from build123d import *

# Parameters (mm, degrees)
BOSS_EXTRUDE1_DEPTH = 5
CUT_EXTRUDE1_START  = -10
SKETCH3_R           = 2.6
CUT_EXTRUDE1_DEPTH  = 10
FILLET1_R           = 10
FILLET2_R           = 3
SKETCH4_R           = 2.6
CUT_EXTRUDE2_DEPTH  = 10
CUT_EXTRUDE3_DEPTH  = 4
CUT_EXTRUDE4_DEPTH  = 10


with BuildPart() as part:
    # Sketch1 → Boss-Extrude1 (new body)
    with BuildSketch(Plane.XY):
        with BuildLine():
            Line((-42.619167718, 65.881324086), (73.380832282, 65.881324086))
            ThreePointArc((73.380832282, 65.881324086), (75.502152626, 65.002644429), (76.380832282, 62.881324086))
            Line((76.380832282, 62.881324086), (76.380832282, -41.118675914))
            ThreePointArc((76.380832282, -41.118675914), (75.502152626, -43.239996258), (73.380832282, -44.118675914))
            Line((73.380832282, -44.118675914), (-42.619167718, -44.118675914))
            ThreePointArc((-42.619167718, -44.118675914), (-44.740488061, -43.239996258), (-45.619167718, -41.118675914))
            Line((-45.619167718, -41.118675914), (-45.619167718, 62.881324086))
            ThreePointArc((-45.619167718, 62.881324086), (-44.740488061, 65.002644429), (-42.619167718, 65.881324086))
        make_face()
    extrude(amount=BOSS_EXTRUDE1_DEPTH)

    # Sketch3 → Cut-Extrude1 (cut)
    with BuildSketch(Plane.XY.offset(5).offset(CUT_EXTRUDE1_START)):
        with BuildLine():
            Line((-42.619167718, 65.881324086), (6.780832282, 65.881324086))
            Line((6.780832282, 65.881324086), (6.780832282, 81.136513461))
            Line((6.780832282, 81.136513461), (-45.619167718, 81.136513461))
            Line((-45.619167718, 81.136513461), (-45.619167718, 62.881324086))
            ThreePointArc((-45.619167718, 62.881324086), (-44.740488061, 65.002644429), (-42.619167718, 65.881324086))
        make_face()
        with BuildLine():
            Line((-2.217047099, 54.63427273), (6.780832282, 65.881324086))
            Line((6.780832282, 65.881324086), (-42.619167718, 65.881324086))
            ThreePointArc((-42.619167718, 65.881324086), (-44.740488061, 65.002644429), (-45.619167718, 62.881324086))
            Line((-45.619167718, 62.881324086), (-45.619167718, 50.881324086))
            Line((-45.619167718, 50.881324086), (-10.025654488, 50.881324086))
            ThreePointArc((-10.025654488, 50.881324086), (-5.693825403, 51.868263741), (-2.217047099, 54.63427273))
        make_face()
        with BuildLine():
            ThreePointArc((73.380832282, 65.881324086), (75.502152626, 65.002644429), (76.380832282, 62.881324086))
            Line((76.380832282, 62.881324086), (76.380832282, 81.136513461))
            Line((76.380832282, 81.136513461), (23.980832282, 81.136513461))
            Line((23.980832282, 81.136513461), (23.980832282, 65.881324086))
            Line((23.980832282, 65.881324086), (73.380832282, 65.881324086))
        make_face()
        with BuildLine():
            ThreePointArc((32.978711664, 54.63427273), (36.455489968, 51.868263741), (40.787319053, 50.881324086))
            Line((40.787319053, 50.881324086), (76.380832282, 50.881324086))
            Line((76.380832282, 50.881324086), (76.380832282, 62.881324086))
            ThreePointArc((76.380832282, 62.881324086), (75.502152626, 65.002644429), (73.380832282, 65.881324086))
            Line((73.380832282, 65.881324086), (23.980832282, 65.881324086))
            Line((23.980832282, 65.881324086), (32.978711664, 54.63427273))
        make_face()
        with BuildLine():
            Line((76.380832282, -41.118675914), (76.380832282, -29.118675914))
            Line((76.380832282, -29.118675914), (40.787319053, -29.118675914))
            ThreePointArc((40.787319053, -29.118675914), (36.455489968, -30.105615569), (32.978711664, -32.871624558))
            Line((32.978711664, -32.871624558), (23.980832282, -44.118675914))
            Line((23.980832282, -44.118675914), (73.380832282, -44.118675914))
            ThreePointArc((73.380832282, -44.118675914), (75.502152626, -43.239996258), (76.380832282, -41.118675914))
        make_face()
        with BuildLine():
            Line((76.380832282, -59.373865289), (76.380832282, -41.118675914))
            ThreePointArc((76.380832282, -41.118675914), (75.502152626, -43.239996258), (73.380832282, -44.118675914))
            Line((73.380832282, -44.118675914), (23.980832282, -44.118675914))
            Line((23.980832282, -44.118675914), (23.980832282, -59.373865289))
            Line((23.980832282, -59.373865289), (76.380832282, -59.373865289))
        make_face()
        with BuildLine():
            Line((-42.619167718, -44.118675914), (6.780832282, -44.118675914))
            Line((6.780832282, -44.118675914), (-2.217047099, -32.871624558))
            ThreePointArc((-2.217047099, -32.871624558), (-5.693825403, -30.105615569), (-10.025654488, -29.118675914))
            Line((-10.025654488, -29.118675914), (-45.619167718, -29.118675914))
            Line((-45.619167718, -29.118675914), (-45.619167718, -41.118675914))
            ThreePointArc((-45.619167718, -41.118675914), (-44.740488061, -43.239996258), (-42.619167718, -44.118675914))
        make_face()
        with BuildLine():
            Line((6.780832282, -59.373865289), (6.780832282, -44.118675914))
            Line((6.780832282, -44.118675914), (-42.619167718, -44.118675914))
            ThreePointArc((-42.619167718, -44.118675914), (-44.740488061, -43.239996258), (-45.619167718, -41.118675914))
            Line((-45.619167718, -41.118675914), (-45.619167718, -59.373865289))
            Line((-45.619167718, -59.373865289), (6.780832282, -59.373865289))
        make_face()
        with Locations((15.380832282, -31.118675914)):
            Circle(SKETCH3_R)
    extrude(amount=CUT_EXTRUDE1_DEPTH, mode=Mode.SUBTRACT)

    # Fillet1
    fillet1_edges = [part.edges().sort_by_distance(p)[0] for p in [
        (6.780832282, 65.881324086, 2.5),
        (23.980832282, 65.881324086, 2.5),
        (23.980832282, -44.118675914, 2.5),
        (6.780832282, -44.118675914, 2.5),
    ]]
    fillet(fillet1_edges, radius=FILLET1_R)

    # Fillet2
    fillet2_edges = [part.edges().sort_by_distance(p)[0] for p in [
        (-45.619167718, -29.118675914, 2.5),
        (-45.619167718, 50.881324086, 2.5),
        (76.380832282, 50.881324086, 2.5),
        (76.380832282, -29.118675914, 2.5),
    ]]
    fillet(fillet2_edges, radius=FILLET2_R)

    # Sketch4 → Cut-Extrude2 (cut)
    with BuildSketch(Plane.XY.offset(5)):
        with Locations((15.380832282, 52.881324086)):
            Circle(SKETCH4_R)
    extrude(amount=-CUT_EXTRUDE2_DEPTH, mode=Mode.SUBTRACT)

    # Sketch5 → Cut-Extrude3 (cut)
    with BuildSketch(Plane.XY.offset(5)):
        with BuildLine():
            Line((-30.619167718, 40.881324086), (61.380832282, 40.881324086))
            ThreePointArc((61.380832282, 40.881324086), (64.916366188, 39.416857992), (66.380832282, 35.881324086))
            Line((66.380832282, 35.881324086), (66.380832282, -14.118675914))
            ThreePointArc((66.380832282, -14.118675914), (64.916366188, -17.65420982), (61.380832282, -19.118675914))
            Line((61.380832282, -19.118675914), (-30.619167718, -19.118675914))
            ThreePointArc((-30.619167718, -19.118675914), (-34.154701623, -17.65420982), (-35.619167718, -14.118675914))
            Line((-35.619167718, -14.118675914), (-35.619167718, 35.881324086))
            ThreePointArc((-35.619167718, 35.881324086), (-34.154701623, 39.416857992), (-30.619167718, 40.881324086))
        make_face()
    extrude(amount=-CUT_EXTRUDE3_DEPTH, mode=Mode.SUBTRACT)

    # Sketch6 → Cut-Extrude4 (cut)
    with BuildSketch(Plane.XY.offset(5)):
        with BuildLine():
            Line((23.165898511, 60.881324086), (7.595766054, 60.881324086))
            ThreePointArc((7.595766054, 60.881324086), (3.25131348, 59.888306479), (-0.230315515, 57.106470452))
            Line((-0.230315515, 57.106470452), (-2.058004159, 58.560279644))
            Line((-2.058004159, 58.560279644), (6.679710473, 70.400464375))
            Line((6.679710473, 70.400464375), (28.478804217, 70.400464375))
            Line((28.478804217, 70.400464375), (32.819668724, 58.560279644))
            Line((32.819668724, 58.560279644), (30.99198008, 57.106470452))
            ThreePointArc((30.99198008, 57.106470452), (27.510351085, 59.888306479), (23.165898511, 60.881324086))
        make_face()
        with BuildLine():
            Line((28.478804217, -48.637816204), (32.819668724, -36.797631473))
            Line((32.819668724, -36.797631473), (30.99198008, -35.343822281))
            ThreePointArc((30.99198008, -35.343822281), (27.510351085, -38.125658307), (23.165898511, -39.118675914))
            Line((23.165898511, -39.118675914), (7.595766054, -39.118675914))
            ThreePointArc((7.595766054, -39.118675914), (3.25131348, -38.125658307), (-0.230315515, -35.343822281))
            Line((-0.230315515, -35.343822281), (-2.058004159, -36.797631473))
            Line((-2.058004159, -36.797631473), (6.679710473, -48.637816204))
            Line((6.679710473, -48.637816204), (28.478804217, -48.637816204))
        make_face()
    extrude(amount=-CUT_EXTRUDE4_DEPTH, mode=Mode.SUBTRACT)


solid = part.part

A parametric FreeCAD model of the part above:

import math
import FreeCAD as App
import Part
import Sketcher
from FreeCAD import Vector
Q = App.Units.Quantity


def edges_at(feature, points):
    """Names of the edges that pass closest to the given points."""
    edges = feature.Shape.Edges
    near = lambda p: min(range(len(edges)), key=lambda i: edges[i].distToShape(Part.Vertex(*p))[0])
    return sorted({f"Edge{near(p) + 1}" for p in points})

doc = App.newDocument("Part")
body = doc.addObject("PartDesign::Body", "Body")

# Sketch on XY plane
sketch1 = doc.addObject("Sketcher::SketchObject", "Sketch")
body.addObject(sketch1)
sketch1.AttachmentSupport = (doc.XY_Plane, [""])
sketch1.MapMode = "FlatFace"
sketch1.addGeometry(Part.LineSegment(Vector(73.4, 65.9, 0), Vector(-42.6, 65.9, 0)), False)
sketch1.addGeometry(Part.ArcOfCircle(Part.Circle(Vector(-42.6, 62.9, 0), Vector(0, 0, 1), 3), math.radians(90), math.radians(180)), False)
sketch1.addGeometry(Part.LineSegment(Vector(-45.6, 62.9, 0), Vector(-45.6, -41.1, 0)), False)
sketch1.addGeometry(Part.ArcOfCircle(Part.Circle(Vector(-42.6, -41.1, 0), Vector(0, 0, 1), 3), math.radians(180), math.radians(270)), False)
sketch1.addGeometry(Part.LineSegment(Vector(-42.6, -44.1, 0), Vector(73.4, -44.1, 0)), False)
sketch1.addGeometry(Part.ArcOfCircle(Part.Circle(Vector(73.4, -41.1, 0), Vector(0, 0, 1), 3), math.radians(-90), math.radians(0)), False)
sketch1.addGeometry(Part.LineSegment(Vector(76.4, -41.1, 0), Vector(76.4, 62.9, 0)), False)
sketch1.addGeometry(Part.ArcOfCircle(Part.Circle(Vector(73.4, 62.9, 0), Vector(0, 0, 1), 3), math.radians(0), math.radians(90)), False)
sketch1.addConstraint(Sketcher.Constraint("Tangent", 0, 2, 1, 1))
sketch1.addConstraint(Sketcher.Constraint("Tangent", 1, 2, 2, 1))
sketch1.addConstraint(Sketcher.Constraint("Tangent", 2, 2, 3, 1))
sketch1.addConstraint(Sketcher.Constraint("Tangent", 3, 2, 4, 1))
sketch1.addConstraint(Sketcher.Constraint("Tangent", 4, 2, 5, 1))
sketch1.addConstraint(Sketcher.Constraint("Tangent", 5, 2, 6, 1))
sketch1.addConstraint(Sketcher.Constraint("Tangent", 6, 2, 7, 1))
sketch1.addConstraint(Sketcher.Constraint("Tangent", 7, 2, 0, 1))
sketch1.addConstraint(Sketcher.Constraint("Horizontal", 0))
sketch1.addConstraint(Sketcher.Constraint("Vertical", 2))
sketch1.addConstraint(Sketcher.Constraint("Horizontal", 4))
sketch1.addConstraint(Sketcher.Constraint("Vertical", 6))
sketch1.addConstraint(Sketcher.Constraint("Equal", 1, 3))
sketch1.addConstraint(Sketcher.Constraint("Equal", 3, 5))
sketch1.addConstraint(Sketcher.Constraint("Equal", 5, 7))
sketch1.addConstraint(Sketcher.Constraint("Radius", 1, 3.0))
sketch1.addConstraint(Sketcher.Constraint("DistanceX", 0, 2, 0, 1, 116.0))
sketch1.addConstraint(Sketcher.Constraint("DistanceY", 2, 2, 2, 1, 104.0))
sketch1.addConstraint(Sketcher.Constraint("DistanceX", 1, 3, -1, 1, 42.619168))
sketch1.addConstraint(Sketcher.Constraint("DistanceY", -1, 1, 1, 3, 62.881324))
pad1 = doc.addObject("PartDesign::Pad", "Pad")
body.addObject(pad1)
pad1.Profile = sketch1
pad1.Length = 5

# Sketch on XY plane
sketch2 = doc.addObject("Sketcher::SketchObject", "Sketch001")
body.addObject(sketch2)
sketch2.AttachmentSupport = (doc.XY_Plane, [""])
sketch2.MapMode = "FlatFace"
sketch2.AttachmentOffset = App.Placement(Vector(0, 0, -5), App.Rotation())
sketch2.addGeometry(Part.LineSegment(Vector(6.8, 65.9, 0), Vector(6.8, 81.1, 0)), False)
sketch2.addGeometry(Part.LineSegment(Vector(6.8, 81.1, 0), Vector(-45.6, 81.1, 0)), False)
sketch2.addGeometry(Part.LineSegment(Vector(-45.6, 81.1, 0), Vector(-45.6, 50.9, 0)), False)
sketch2.addGeometry(Part.LineSegment(Vector(-45.6, 50.9, 0), Vector(-10, 50.9, 0)), False)
sketch2.addGeometry(Part.ArcOfCircle(Part.Circle(Vector(-10, 60.9, 0), Vector(0, 0, 1), 10), math.radians(-90), math.radians(-39)), False)
sketch2.addGeometry(Part.LineSegment(Vector(-2.2, 54.6, 0), Vector(6.8, 65.9, 0)), False)
sketch2.addGeometry(Part.LineSegment(Vector(76.4, 81.1, 0), Vector(24, 81.1, 0)), False)
sketch2.addGeometry(Part.LineSegment(Vector(24, 81.1, 0), Vector(24, 65.9, 0)), False)
sketch2.addGeometry(Part.LineSegment(Vector(24, 65.9, 0), Vector(33, 54.6, 0)), False)
sketch2.addGeometry(Part.ArcOfCircle(Part.Circle(Vector(40.8, 60.9, 0), Vector(0, 0, 1), 10), math.radians(-141), math.radians(-90)), False)
sketch2.addGeometry(Part.LineSegment(Vector(40.8, 50.9, 0), Vector(76.4, 50.9, 0)), False)
sketch2.addGeometry(Part.LineSegment(Vector(76.4, 50.9, 0), Vector(76.4, 81.1, 0)), False)
sketch2.addGeometry(Part.LineSegment(Vector(76.4, -29.1, 0), Vector(40.8, -29.1, 0)), False)
sketch2.addGeometry(Part.ArcOfCircle(Part.Circle(Vector(40.8, -39.1, 0), Vector(0, 0, 1), 10), math.radians(90), math.radians(141)), False)
sketch2.addGeometry(Part.LineSegment(Vector(33, -32.9, 0), Vector(24, -44.1, 0)), False)
sketch2.addGeometry(Part.LineSegment(Vector(24, -44.1, 0), Vector(24, -59.4, 0)), False)
sketch2.addGeometry(Part.LineSegment(Vector(24, -59.4, 0), Vector(76.4, -59.4, 0)), False)
sketch2.addGeometry(Part.LineSegment(Vector(76.4, -59.4, 0), Vector(76.4, -29.1, 0)), False)
sketch2.addGeometry(Part.LineSegment(Vector(6.8, -44.1, 0), Vector(-2.2, -32.9, 0)), False)
sketch2.addGeometry(Part.ArcOfCircle(Part.Circle(Vector(-10, -39.1, 0), Vector(0, 0, 1), 10), math.radians(39), math.radians(90)), False)
sketch2.addGeometry(Part.LineSegment(Vector(-10, -29.1, 0), Vector(-45.6, -29.1, 0)), False)
sketch2.addGeometry(Part.LineSegment(Vector(-45.6, -29.1, 0), Vector(-45.6, -59.4, 0)), False)
sketch2.addGeometry(Part.LineSegment(Vector(-45.6, -59.4, 0), Vector(6.8, -59.4, 0)), False)
sketch2.addGeometry(Part.LineSegment(Vector(6.8, -59.4, 0), Vector(6.8, -44.1, 0)), False)
sketch2.addGeometry(Part.Circle(Vector(15.4, -31.1, 0), Vector(0, 0, 1), 2.6), False)
sketch2.addConstraint(Sketcher.Constraint("Coincident", 0, 2, 1, 1))
sketch2.addConstraint(Sketcher.Constraint("Coincident", 1, 2, 2, 1))
sketch2.addConstraint(Sketcher.Constraint("Coincident", 2, 2, 3, 1))
sketch2.addConstraint(Sketcher.Constraint("Tangent", 3, 2, 4, 1))
sketch2.addConstraint(Sketcher.Constraint("Tangent", 4, 2, 5, 1))
sketch2.addConstraint(Sketcher.Constraint("Coincident", 5, 2, 0, 1))
sketch2.addConstraint(Sketcher.Constraint("Coincident", 6, 2, 7, 1))
sketch2.addConstraint(Sketcher.Constraint("Coincident", 7, 2, 8, 1))
sketch2.addConstraint(Sketcher.Constraint("Tangent", 8, 2, 9, 1))
sketch2.addConstraint(Sketcher.Constraint("Tangent", 9, 2, 10, 1))
sketch2.addConstraint(Sketcher.Constraint("Coincident", 10, 2, 11, 1))
sketch2.addConstraint(Sketcher.Constraint("Coincident", 11, 2, 6, 1))
sketch2.addConstraint(Sketcher.Constraint("Tangent", 12, 2, 13, 1))
sketch2.addConstraint(Sketcher.Constraint("Tangent", 13, 2, 14, 1))
sketch2.addConstraint(Sketcher.Constraint("Coincident", 14, 2, 15, 1))
sketch2.addConstraint(Sketcher.Constraint("Coincident", 15, 2, 16, 1))
sketch2.addConstraint(Sketcher.Constraint("Coincident", 16, 2, 17, 1))
sketch2.addConstraint(Sketcher.Constraint("Coincident", 17, 2, 12, 1))
sketch2.addConstraint(Sketcher.Constraint("Tangent", 18, 2, 19, 1))
sketch2.addConstraint(Sketcher.Constraint("Tangent", 19, 2, 20, 1))
sketch2.addConstraint(Sketcher.Constraint("Coincident", 20, 2, 21, 1))
sketch2.addConstraint(Sketcher.Constraint("Coincident", 21, 2, 22, 1))
sketch2.addConstraint(Sketcher.Constraint("Coincident", 22, 2, 23, 1))
sketch2.addConstraint(Sketcher.Constraint("Coincident", 23, 2, 18, 1))
sketch2.addConstraint(Sketcher.Constraint("Vertical", 0))
sketch2.addConstraint(Sketcher.Constraint("Horizontal", 1))
sketch2.addConstraint(Sketcher.Constraint("Vertical", 2))
sketch2.addConstraint(Sketcher.Constraint("Horizontal", 3))
sketch2.addConstraint(Sketcher.Constraint("Horizontal", 6))
sketch2.addConstraint(Sketcher.Constraint("Vertical", 7))
sketch2.addConstraint(Sketcher.Constraint("Horizontal", 10))
sketch2.addConstraint(Sketcher.Constraint("Vertical", 11))
sketch2.addConstraint(Sketcher.Constraint("Horizontal", 12))
sketch2.addConstraint(Sketcher.Constraint("Vertical", 15))
sketch2.addConstraint(Sketcher.Constraint("Horizontal", 16))
sketch2.addConstraint(Sketcher.Constraint("Vertical", 17))
sketch2.addConstraint(Sketcher.Constraint("Horizontal", 20))
sketch2.addConstraint(Sketcher.Constraint("Vertical", 21))
sketch2.addConstraint(Sketcher.Constraint("Horizontal", 22))
sketch2.addConstraint(Sketcher.Constraint("Vertical", 23))
sketch2.addConstraint(Sketcher.Constraint("Equal", 4, 9))
sketch2.addConstraint(Sketcher.Constraint("Equal", 9, 13))
sketch2.addConstraint(Sketcher.Constraint("Equal", 13, 19))
sketch2.addConstraint(Sketcher.Constraint("Parallel", 5, 14))
sketch2.addConstraint(Sketcher.Constraint("Parallel", 8, 18))
sketch2.addConstraint(Sketcher.Constraint("Horizontal", 4, 3, 9, 3))
sketch2.addConstraint(Sketcher.Constraint("Horizontal", 13, 3, 19, 3))
sketch2.addConstraint(Sketcher.Constraint("Horizontal", 1, 2, 6, 2))
sketch2.addConstraint(Sketcher.Constraint("Horizontal", 5, 2, 7, 2))
sketch2.addConstraint(Sketcher.Constraint("Horizontal", 4, 2, 8, 2))
sketch2.addConstraint(Sketcher.Constraint("Horizontal", 16, 2, 21, 2))
sketch2.addConstraint(Sketcher.Constraint("Horizontal", 14, 2, 23, 2))
sketch2.addConstraint(Sketcher.Constraint("Vertical", 9, 3, 13, 3))
sketch2.addConstraint(Sketcher.Constraint("Vertical", 4, 3, 19, 3))
sketch2.addConstraint(Sketcher.Constraint("Vertical", 7, 2, 14, 2))
sketch2.addConstraint(Sketcher.Constraint("Vertical", 11, 2, 16, 2))
sketch2.addConstraint(Sketcher.Constraint("Vertical", 2, 2, 20, 2))
sketch2.addConstraint(Sketcher.Constraint("Equal", 1, 6))
sketch2.addConstraint(Sketcher.Constraint("Equal", 7, 15))
sketch2.addConstraint(Sketcher.Constraint("Radius", 4, 10.0))
sketch2.addConstraint(Sketcher.Constraint("Diameter", 24, 5.2))
sketch2.addConstraint(Sketcher.Constraint("DistanceX", 1, 2, 1, 1, 52.4))
sketch2.addConstraint(Sketcher.Constraint("DistanceY", 13, 3, 9, 3, 100.0))
sketch2.addConstraint(Sketcher.Constraint("DistanceY", 19, 3, 24, 3, 8.0))
sketch2.addConstraint(Sketcher.Constraint("DistanceX", 1, 2, 24, 3, 61.0))
sketch2.addConstraint(Sketcher.Constraint("DistanceY", 4, 3, 5, 2, 5.0))
sketch2.addConstraint(Sketcher.Constraint("DistanceX", 0, 2, 6, 2, 17.2))
sketch2.addConstraint(Sketcher.Constraint("DistanceY", 0, 1, 0, 2, 15.255189))
sketch2.addConstraint(Sketcher.Constraint("DistanceX", 3, 1, 3, 2, 35.593513))
sketch2.addConstraint(Sketcher.Constraint("DistanceX", -1, 1, 9, 3, 40.787319))
sketch2.addConstraint(Sketcher.Constraint("DistanceY", -1, 1, 4, 3, 60.881324))
pocket1 = doc.addObject("PartDesign::Pocket", "Pocket")
body.addObject(pocket1)
pocket1.Profile = sketch2
pocket1.Length = 10
pocket1.Reversed = True
doc.recompute()

fillet = doc.addObject("PartDesign::Fillet", "Fillet")
body.addObject(fillet)
fillet.Base = (pocket1, edges_at(pocket1, [
    (6.781, 65.881, 2.5),
    (23.981, 65.881, 2.5),
    (23.981, -44.119, 2.5),
    (6.781, -44.119, 2.5),
]))
fillet.Radius = 10
doc.recompute()

fillet2 = doc.addObject("PartDesign::Fillet", "Fillet001")
body.addObject(fillet2)
fillet2.Base = (fillet, edges_at(fillet, [
    (-45.619, -29.119, 2.5),
    (-45.619, 50.881, 2.5),
    (76.381, 50.881, 2.5),
    (76.381, -29.119, 2.5),
]))
fillet2.Radius = 3

# Sketch on XY plane
sketch3 = doc.addObject("Sketcher::SketchObject", "Sketch002")
body.addObject(sketch3)
sketch3.AttachmentSupport = (doc.XY_Plane, [""])
sketch3.MapMode = "FlatFace"
sketch3.AttachmentOffset = App.Placement(Vector(0, 0, 5), App.Rotation())
sketch3.addGeometry(Part.Circle(Vector(15.4, 52.9, 0), Vector(0, 0, 1), 2.6), False)
sketch3.addConstraint(Sketcher.Constraint("Diameter", 0, 5.2))
sketch3.addConstraint(Sketcher.Constraint("DistanceX", -1, 1, 0, 3, 15.380832))
sketch3.addConstraint(Sketcher.Constraint("DistanceY", -1, 1, 0, 3, 52.881324))
pocket2 = doc.addObject("PartDesign::Pocket", "Pocket001")
body.addObject(pocket2)
pocket2.Profile = sketch3
pocket2.Length = 10

# Sketch on XY plane
sketch4 = doc.addObject("Sketcher::SketchObject", "Sketch003")
body.addObject(sketch4)
sketch4.AttachmentSupport = (doc.XY_Plane, [""])
sketch4.MapMode = "FlatFace"
sketch4.AttachmentOffset = App.Placement(Vector(0, 0, 5), App.Rotation())
sketch4.addGeometry(Part.LineSegment(Vector(61, 41, 0), Vector(-31, 41, 0)), False)
sketch4.addGeometry(Part.ArcOfCircle(Part.Circle(Vector(-31, 36, 0), Vector(0, 0, 1), 5), math.radians(90), math.radians(180)), False)
sketch4.addGeometry(Part.LineSegment(Vector(-36, 36, 0), Vector(-36, -14, 0)), False)
sketch4.addGeometry(Part.ArcOfCircle(Part.Circle(Vector(-31, -14, 0), Vector(0, 0, 1), 5), math.radians(-180), math.radians(-90)), False)
sketch4.addGeometry(Part.LineSegment(Vector(-31, -19, 0), Vector(61, -19, 0)), False)
sketch4.addGeometry(Part.ArcOfCircle(Part.Circle(Vector(61, -14, 0), Vector(0, 0, 1), 5), math.radians(-90), math.radians(0)), False)
sketch4.addGeometry(Part.LineSegment(Vector(66, -14, 0), Vector(66, 36, 0)), False)
sketch4.addGeometry(Part.ArcOfCircle(Part.Circle(Vector(61, 36, 0), Vector(0, 0, 1), 5), math.radians(0), math.radians(90)), False)
sketch4.addConstraint(Sketcher.Constraint("Tangent", 0, 2, 1, 1))
sketch4.addConstraint(Sketcher.Constraint("Tangent", 1, 2, 2, 1))
sketch4.addConstraint(Sketcher.Constraint("Tangent", 2, 2, 3, 1))
sketch4.addConstraint(Sketcher.Constraint("Tangent", 3, 2, 4, 1))
sketch4.addConstraint(Sketcher.Constraint("Tangent", 4, 2, 5, 1))
sketch4.addConstraint(Sketcher.Constraint("Tangent", 5, 2, 6, 1))
sketch4.addConstraint(Sketcher.Constraint("Tangent", 6, 2, 7, 1))
sketch4.addConstraint(Sketcher.Constraint("Tangent", 7, 2, 0, 1))
sketch4.addConstraint(Sketcher.Constraint("Horizontal", 0))
sketch4.addConstraint(Sketcher.Constraint("Vertical", 2))
sketch4.addConstraint(Sketcher.Constraint("Horizontal", 4))
sketch4.addConstraint(Sketcher.Constraint("Vertical", 6))
sketch4.addConstraint(Sketcher.Constraint("Equal", 1, 3))
sketch4.addConstraint(Sketcher.Constraint("Equal", 3, 5))
sketch4.addConstraint(Sketcher.Constraint("Equal", 5, 7))
sketch4.addConstraint(Sketcher.Constraint("Radius", 1, 5.0))
sketch4.addConstraint(Sketcher.Constraint("DistanceX", 0, 2, 0, 1, 92.0))
sketch4.addConstraint(Sketcher.Constraint("DistanceY", 2, 2, 2, 1, 50.0))
sketch4.addConstraint(Sketcher.Constraint("DistanceX", 1, 3, -1, 1, 30.619168))
sketch4.addConstraint(Sketcher.Constraint("DistanceY", -1, 1, 1, 3, 35.881324))
pocket3 = doc.addObject("PartDesign::Pocket", "Pocket002")
body.addObject(pocket3)
pocket3.Profile = sketch4
pocket3.Length = 4

# Sketch on XY plane
sketch5 = doc.addObject("Sketcher::SketchObject", "Sketch004")
body.addObject(sketch5)
sketch5.AttachmentSupport = (doc.XY_Plane, [""])
sketch5.MapMode = "FlatFace"
sketch5.AttachmentOffset = App.Placement(Vector(0, 0, 5), App.Rotation())
sketch5.addGeometry(Part.LineSegment(Vector(7.6, 60.9, 0), Vector(23.2, 60.9, 0)), False)
sketch5.addGeometry(Part.ArcOfCircle(Part.Circle(Vector(23.2, 50.9, 0), Vector(0, 0, 1), 10), math.radians(39), math.radians(90)), False)
sketch5.addGeometry(Part.LineSegment(Vector(31, 57.1, 0), Vector(32.8, 58.6, 0)), False)
sketch5.addGeometry(Part.LineSegment(Vector(32.8, 58.6, 0), Vector(28.5, 70.4, 0)), False)
sketch5.addGeometry(Part.LineSegment(Vector(28.5, 70.4, 0), Vector(6.7, 70.4, 0)), False)
sketch5.addGeometry(Part.LineSegment(Vector(6.7, 70.4, 0), Vector(-2.1, 58.6, 0)), False)
sketch5.addGeometry(Part.LineSegment(Vector(-2.1, 58.6, 0), Vector(-0.2, 57.1, 0)), False)
sketch5.addGeometry(Part.ArcOfCircle(Part.Circle(Vector(7.6, 50.9, 0), Vector(0, 0, 1), 10), math.radians(90), math.radians(141)), False)
sketch5.addGeometry(Part.LineSegment(Vector(28.5, -48.6, 0), Vector(32.8, -36.8, 0)), False)
sketch5.addGeometry(Part.LineSegment(Vector(32.8, -36.8, 0), Vector(31, -35.3, 0)), False)
sketch5.addGeometry(Part.ArcOfCircle(Part.Circle(Vector(23.2, -29.1, 0), Vector(0, 0, 1), 10), math.radians(-90), math.radians(-39)), False)
sketch5.addGeometry(Part.LineSegment(Vector(23.2, -39.1, 0), Vector(7.6, -39.1, 0)), False)
sketch5.addGeometry(Part.ArcOfCircle(Part.Circle(Vector(7.6, -29.1, 0), Vector(0, 0, 1), 10), math.radians(-141), math.radians(-90)), False)
sketch5.addGeometry(Part.LineSegment(Vector(-0.2, -35.3, 0), Vector(-2.1, -36.8, 0)), False)
sketch5.addGeometry(Part.LineSegment(Vector(-2.1, -36.8, 0), Vector(6.7, -48.6, 0)), False)
sketch5.addGeometry(Part.LineSegment(Vector(6.7, -48.6, 0), Vector(28.5, -48.6, 0)), False)
sketch5.addConstraint(Sketcher.Constraint("Tangent", 0, 2, 1, 2))
sketch5.addConstraint(Sketcher.Constraint("Coincident", 1, 1, 2, 1))
sketch5.addConstraint(Sketcher.Constraint("Coincident", 2, 2, 3, 1))
sketch5.addConstraint(Sketcher.Constraint("Coincident", 3, 2, 4, 1))
sketch5.addConstraint(Sketcher.Constraint("Coincident", 4, 2, 5, 1))
sketch5.addConstraint(Sketcher.Constraint("Coincident", 5, 2, 6, 1))
sketch5.addConstraint(Sketcher.Constraint("Coincident", 6, 2, 7, 2))
sketch5.addConstraint(Sketcher.Constraint("Tangent", 7, 1, 0, 1))
sketch5.addConstraint(Sketcher.Constraint("Coincident", 8, 2, 9, 1))
sketch5.addConstraint(Sketcher.Constraint("Coincident", 9, 2, 10, 2))
sketch5.addConstraint(Sketcher.Constraint("Tangent", 10, 1, 11, 1))
sketch5.addConstraint(Sketcher.Constraint("Tangent", 11, 2, 12, 2))
sketch5.addConstraint(Sketcher.Constraint("Coincident", 12, 1, 13, 1))
sketch5.addConstraint(Sketcher.Constraint("Coincident", 13, 2, 14, 1))
sketch5.addConstraint(Sketcher.Constraint("Coincident", 14, 2, 15, 1))
sketch5.addConstraint(Sketcher.Constraint("Coincident", 15, 2, 8, 1))
sketch5.addConstraint(Sketcher.Constraint("Horizontal", 0))
sketch5.addConstraint(Sketcher.Constraint("Horizontal", 4))
sketch5.addConstraint(Sketcher.Constraint("Horizontal", 11))
sketch5.addConstraint(Sketcher.Constraint("Horizontal", 15))
sketch5.addConstraint(Sketcher.Constraint("Equal", 1, 7))
sketch5.addConstraint(Sketcher.Constraint("Equal", 7, 10))
sketch5.addConstraint(Sketcher.Constraint("Equal", 10, 12))
sketch5.addConstraint(Sketcher.Constraint("Parallel", 6, 9))
sketch5.addConstraint(Sketcher.Constraint("Parallel", 2, 13))
sketch5.addConstraint(Sketcher.Constraint("Horizontal", 2, 2, 5, 2))
sketch5.addConstraint(Sketcher.Constraint("Horizontal", 1, 1, 6, 2))
sketch5.addConstraint(Sketcher.Constraint("Horizontal", 9, 2, 12, 1))
sketch5.addConstraint(Sketcher.Constraint("Horizontal", 8, 2, 13, 2))
sketch5.addConstraint(Sketcher.Constraint("Vertical", 1, 3, 10, 3))
sketch5.addConstraint(Sketcher.Constraint("Vertical", 7, 3, 12, 3))
sketch5.addConstraint(Sketcher.Constraint("Vertical", 2, 2, 8, 2))
sketch5.addConstraint(Sketcher.Constraint("Vertical", 1, 1, 9, 2))
sketch5.addConstraint(Sketcher.Constraint("Vertical", 5, 2, 13, 2))
sketch5.addConstraint(Sketcher.Constraint("Vertical", 4, 2, 14, 2))
sketch5.addConstraint(Sketcher.Constraint("Vertical", 3, 2, 15, 2))
sketch5.addConstraint(Sketcher.Constraint("Equal", 3, 8))
sketch5.addConstraint(Sketcher.Constraint("Radius", 1, 10.0))
sketch5.addConstraint(Sketcher.Constraint("Angle", 2, Q("38.5 deg")))
sketch5.addConstraint(Sketcher.Constraint("DistanceY", 10, 3, 1, 3, 80.0))
sketch5.addConstraint(Sketcher.Constraint("DistanceX", -1, 1, 1, 3, 23.165899))
sketch5.addConstraint(Sketcher.Constraint("DistanceY", 8, 2, 1, 1, 93.904102))
sketch5.addConstraint(Sketcher.Constraint("Distance", 2, 2.335382))
sketch5.addConstraint(Sketcher.Constraint("Distance", 3, 12.610832))
sketch5.addConstraint(Sketcher.Constraint("DistanceX", 0, 1, 0, 2, 15.570132))
sketch5.addConstraint(Sketcher.Constraint("DistanceX", 4, 2, 4, 1, 21.799094))
sketch5.addConstraint(Sketcher.Constraint("DistanceY", -1, 1, 1, 1, 57.10647))
sketch5.addConstraint(Sketcher.Constraint("DistanceX", -1, 1, 4, 2, 6.67971))
pocket4 = doc.addObject("PartDesign::Pocket", "Pocket003")
body.addObject(pocket4)
pocket4.Profile = sketch5
pocket4.Length = 10

doc.recompute()
